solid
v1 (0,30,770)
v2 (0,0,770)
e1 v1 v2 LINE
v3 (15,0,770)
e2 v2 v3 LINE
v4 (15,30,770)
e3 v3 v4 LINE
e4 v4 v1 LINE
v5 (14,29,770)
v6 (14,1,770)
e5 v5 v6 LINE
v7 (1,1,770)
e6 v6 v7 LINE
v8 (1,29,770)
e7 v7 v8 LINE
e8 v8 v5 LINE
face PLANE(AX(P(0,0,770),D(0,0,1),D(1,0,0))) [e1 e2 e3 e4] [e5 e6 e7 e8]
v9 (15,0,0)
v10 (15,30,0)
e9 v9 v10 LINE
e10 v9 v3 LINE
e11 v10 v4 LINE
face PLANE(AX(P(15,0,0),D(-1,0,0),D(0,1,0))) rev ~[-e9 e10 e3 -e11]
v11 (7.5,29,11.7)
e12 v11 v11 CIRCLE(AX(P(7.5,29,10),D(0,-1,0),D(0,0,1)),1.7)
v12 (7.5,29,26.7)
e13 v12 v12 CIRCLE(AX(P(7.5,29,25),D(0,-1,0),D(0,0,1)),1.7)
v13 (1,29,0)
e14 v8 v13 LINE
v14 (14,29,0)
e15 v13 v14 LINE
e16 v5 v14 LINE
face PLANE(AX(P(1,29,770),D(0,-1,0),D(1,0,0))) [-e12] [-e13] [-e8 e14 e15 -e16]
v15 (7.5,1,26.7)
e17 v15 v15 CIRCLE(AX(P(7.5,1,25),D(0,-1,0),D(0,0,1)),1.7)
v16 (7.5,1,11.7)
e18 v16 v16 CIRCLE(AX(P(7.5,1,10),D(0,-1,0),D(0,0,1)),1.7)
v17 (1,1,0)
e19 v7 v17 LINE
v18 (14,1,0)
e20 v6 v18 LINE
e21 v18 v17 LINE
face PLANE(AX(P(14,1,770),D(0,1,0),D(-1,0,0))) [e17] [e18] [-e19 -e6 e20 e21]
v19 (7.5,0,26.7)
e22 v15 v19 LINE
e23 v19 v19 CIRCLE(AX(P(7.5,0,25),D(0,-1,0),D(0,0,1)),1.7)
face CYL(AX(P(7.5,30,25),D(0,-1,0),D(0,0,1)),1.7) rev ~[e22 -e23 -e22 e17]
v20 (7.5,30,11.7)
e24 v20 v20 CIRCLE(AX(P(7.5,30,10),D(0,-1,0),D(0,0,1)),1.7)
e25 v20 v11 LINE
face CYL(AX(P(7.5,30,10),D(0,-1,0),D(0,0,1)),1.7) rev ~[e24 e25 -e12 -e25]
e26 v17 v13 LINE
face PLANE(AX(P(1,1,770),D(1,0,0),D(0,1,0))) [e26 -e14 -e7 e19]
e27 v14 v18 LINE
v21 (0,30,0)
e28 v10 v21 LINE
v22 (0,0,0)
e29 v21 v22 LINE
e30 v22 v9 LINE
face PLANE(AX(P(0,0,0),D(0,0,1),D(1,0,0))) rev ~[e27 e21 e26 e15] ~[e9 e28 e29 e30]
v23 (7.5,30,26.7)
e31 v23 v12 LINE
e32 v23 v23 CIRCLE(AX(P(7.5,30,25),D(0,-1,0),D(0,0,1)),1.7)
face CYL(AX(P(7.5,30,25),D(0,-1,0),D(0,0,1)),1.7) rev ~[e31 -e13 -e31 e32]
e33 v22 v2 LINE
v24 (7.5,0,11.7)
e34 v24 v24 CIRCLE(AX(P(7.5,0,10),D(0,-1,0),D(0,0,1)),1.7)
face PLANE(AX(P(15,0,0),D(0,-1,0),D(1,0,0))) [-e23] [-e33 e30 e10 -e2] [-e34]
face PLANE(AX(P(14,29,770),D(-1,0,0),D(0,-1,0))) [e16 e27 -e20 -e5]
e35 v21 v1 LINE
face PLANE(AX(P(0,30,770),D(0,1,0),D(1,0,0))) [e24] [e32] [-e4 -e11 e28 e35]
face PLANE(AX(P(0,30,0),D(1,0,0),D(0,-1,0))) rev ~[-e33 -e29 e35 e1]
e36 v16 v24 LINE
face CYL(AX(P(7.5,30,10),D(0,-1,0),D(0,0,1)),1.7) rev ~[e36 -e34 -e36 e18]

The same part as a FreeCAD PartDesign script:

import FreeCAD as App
import Part
import Sketcher

V = App.Vector
Q = App.Units.Quantity


def add_polygon(sketch, points):
    """Adds a closed chain of lines whose ends are joined by coincident constraints."""
    first, n = sketch.GeometryCount, len(points)
    for a, b in zip(points, points[1:] + points[:1]):
        sketch.addGeometry(Part.LineSegment(App.Vector(*a, 0), App.Vector(*b, 0)), False)
    for i in range(n):
        sketch.addConstraint(Sketcher.Constraint("Coincident", first + i, 2, first + (i + 1) % n, 1))

doc = App.newDocument("Part")
body = doc.addObject("PartDesign::Body", "Body")

sketch1 = body.newObject("Sketcher::SketchObject", "Sketch")
sketch1.AttachmentSupport = (doc.getObject("XY_Plane"), [""])
sketch1.MapMode = "FlatFace"
add_polygon(sketch1, [(0, 30), (0, 0), (15, 0), (15, 30)])
sketch1.addConstraint([
    Sketcher.Constraint("Vertical", 0),
    Sketcher.Constraint("Horizontal", 1),
    Sketcher.Constraint("Vertical", 2),
    Sketcher.Constraint("Horizontal", 3),
    Sketcher.Constraint("Coincident", 0, 2, -1, 1),
    Sketcher.Constraint("DistanceX", 1, 1, 1, 2, Q("15 mm")),
    Sketcher.Constraint("DistanceY", 0, 2, 0, 1, Q("30 mm")),
])
pad1 = body.newObject("PartDesign::Pad", "Pad")
pad1.Profile = sketch1
pad1.Length = 770

sketch2 = body.newObject("Sketcher::SketchObject", "Sketch001")
sketch2.AttachmentSupport = (doc.getObject("XY_Plane"), [""])
sketch2.MapMode = "FlatFace"
sketch2.AttachmentOffset = App.Placement(V(0, 0, 770), App.Rotation())
add_polygon(sketch2, [(14, 29), (1, 29), (1, 1), (14, 1)])
sketch2.addConstraint([
    Sketcher.Constraint("Horizontal", 0),
    Sketcher.Constraint("Vertical", 1),
    Sketcher.Constraint("Horizontal", 2),
    Sketcher.Constraint("Vertical", 3),
    Sketcher.Constraint("DistanceX", 0, 2, 0, 1, Q("13 mm")),
    Sketcher.Constraint("DistanceY", 1, 2, 1, 1, Q("28 mm")),
    Sketcher.Constraint("DistanceX", -1, 1, 0, 2, Q("1 mm")),
    Sketcher.Constraint("DistanceY", -1, 1, 1, 2, Q("1 mm")),
])
pocket1 = body.newObject("PartDesign::Pocket", "Pocket")
pocket1.Profile = sketch2
pocket1.Length = 770

sketch3 = body.newObject("Sketcher::SketchObject", "Sketch002")
sketch3.AttachmentSupport = (doc.getObject("XZ_Plane"), [""])
sketch3.MapMode = "FlatFace"
sketch3.AttachmentOffset = App.Placement(V(0, 0, -30), App.Rotation())
sketch3.addGeometry([
    Part.Circle(V(7.5, 20, 0), V(0, 0, 1), 1.7),
    Part.Circle(V(7.5, 10, 0), V(0, 0, 1), 1.7),
], False)
sketch3.addConstraint([
    Sketcher.Constraint("Equal", 0, 1),
    Sketcher.Constraint("Vertical", 0, 3, 1, 3),
    Sketcher.Constraint("Diameter", 0, Q("3.4 mm")),
    Sketcher.Constraint("DistanceY", -1, 1, 0, 3, Q("20 mm")),
    Sketcher.Constraint("DistanceY", -1, 1, 1, 3, Q("10 mm")),
    Sketcher.Constraint("DistanceX", -1, 1, 0, 3, Q("7.5 mm")),
])
doc.recompute()
hole = body.newObject("PartDesign::Hole", "Hole")
hole.Profile = sketch3
hole.ThreadType = "None"
hole.Diameter = 3.4
hole.DepthType = "Dimension"
hole.Depth = 30
hole.DrillPoint = "Flat"
hole.Reversed = True

sketch4 = body.newObject("Sketcher::SketchObject", "Sketch003")
sketch4.AttachmentSupport = (doc.getObject("XZ_Plane"), [""])
sketch4.MapMode = "FlatFace"
sketch4.AttachmentOffset = App.Placement(V(0, 0, -30), App.Rotation())
sketch4.addGeometry(Part.Circle(V(7.5, 20, 0), V(0, 0, 1), 1.7), False)
sketch4.addConstraint([
    Sketcher.Constraint("Diameter", 0, Q("3.4 mm")),
    Sketcher.Constraint("DistanceY", -1, 1, 0, 3, Q("20 mm")),
    Sketcher.Constraint("DistanceX", -1, 1, 0, 3, Q("7.5 mm")),
])
pad2 = body.newObject("PartDesign::Pad", "Pad001")
pad2.Profile = sketch4
pad2.Length = 1

sketch5 = body.newObject("Sketcher::SketchObject", "Sketch004")
sketch5.AttachmentSupport = (doc.getObject("XZ_Plane"), [""])
sketch5.MapMode = "FlatFace"
sketch5.addGeometry(Part.Circle(V(7.5, 20, 0), V(0, 0, 1), 1.7), False)
sketch5.addConstraint([
    Sketcher.Constraint("Diameter", 0, Q("3.4 mm")),
    Sketcher.Constraint("DistanceY", -1, 1, 0, 3, Q("20 mm")),
    Sketcher.Constraint("DistanceX", -1, 1, 0, 3, Q("7.5 mm")),
])
pad3 = body.newObject("PartDesign::Pad", "Pad002")
pad3.Profile = sketch5
pad3.Length = 1
pad3.Reversed = True

sketch6 = body.newObject("Sketcher::SketchObject", "Sketch005")
sketch6.AttachmentSupport = (doc.getObject("XZ_Plane"), [""])
sketch6.MapMode = "FlatFace"
sketch6.AttachmentOffset = App.Placement(V(0, 0, -30), App.Rotation())
sketch6.addGeometry(Part.Circle(V(7.5, 25, 0), V(0, 0, 1), 1.7), False)
sketch6.addConstraint([
    Sketcher.Constraint("Diameter", 0, Q("3.4 mm")),
    Sketcher.Constraint("DistanceY", -1, 1, 0, 3, Q("25 mm")),
    Sketcher.Constraint("DistanceX", -1, 1, 0, 3, Q("7.5 mm")),
])
doc.recompute()
hole2 = body.newObject("PartDesign::Hole", "Hole001")
hole2.Profile = sketch6
hole2.ThreadType = "None"
hole2.Diameter = 3.4
hole2.DepthType = "Dimension"
hole2.Depth = 30
hole2.DrillPoint = "Flat"
hole2.Reversed = True

doc.recompute()
